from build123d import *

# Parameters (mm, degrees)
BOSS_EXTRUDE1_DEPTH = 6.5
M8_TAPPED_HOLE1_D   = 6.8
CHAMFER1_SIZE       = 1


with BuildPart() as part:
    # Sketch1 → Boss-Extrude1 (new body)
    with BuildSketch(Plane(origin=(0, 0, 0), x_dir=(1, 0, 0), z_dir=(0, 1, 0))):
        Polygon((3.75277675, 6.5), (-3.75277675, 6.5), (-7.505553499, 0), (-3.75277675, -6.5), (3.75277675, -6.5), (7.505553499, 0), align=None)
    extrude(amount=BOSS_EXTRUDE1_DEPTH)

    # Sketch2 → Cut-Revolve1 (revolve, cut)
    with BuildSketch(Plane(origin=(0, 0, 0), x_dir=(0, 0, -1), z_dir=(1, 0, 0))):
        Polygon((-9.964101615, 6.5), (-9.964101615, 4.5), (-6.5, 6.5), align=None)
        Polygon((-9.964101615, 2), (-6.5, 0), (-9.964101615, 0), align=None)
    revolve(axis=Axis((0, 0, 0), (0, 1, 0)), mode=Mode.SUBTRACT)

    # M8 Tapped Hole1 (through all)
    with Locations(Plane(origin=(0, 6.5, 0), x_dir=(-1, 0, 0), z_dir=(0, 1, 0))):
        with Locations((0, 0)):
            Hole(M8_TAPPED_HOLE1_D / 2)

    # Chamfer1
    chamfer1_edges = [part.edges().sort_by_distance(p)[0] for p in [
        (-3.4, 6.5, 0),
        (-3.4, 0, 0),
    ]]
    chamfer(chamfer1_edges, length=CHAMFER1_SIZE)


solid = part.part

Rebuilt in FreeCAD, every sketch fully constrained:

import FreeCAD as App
import Part
import Sketcher
Q = App.Units.Quantity


def edges_at(feature, points):
    """Names of the edges that pass closest to the given points."""
    edges = feature.Shape.Edges
    near = lambda p: min(range(len(edges)), key=lambda i: edges[i].distToShape(Part.Vertex(*p))[0])
    return sorted({f"Edge{near(p) + 1}" for p in points})

doc = App.newDocument("Part")
body = doc.addObject("PartDesign::Body", "Body")

# Sketch on XZ plane
sketch1 = body.newObject("Sketcher::SketchObject", "Sketch")
sketch1.AttachmentSupport = (doc.getObject("XZ_Plane"), [""])
sketch1.MapMode = "FlatFace"
sketch1.addGeometry(Part.LineSegment(App.Vector(4, -6, 0), App.Vector(-4, -6, 0)), False)
sketch1.addGeometry(Part.LineSegment(App.Vector(-4, -6, 0), App.Vector(-8, 0, 0)), False)
sketch1.addGeometry(Part.LineSegment(App.Vector(-8, 0, 0), App.Vector(-4, 6, 0)), False)
sketch1.addGeometry(Part.LineSegment(App.Vector(-4, 6, 0), App.Vector(4, 6, 0)), False)
sketch1.addGeometry(Part.LineSegment(App.Vector(4, 6, 0), App.Vector(8, 0, 0)), False)
sketch1.addGeometry(Part.LineSegment(App.Vector(8, 0, 0), App.Vector(4, -6, 0)), False)
sketch1.addConstraint(Sketcher.Constraint("Coincident", 0, 2, 1, 1))
sketch1.addConstraint(Sketcher.Constraint("Coincident", 1, 2, 2, 1))
sketch1.addConstraint(Sketcher.Constraint("Coincident", 2, 2, 3, 1))
sketch1.addConstraint(Sketcher.Constraint("Coincident", 3, 2, 4, 1))
sketch1.addConstraint(Sketcher.Constraint("Coincident", 4, 2, 5, 1))
sketch1.addConstraint(Sketcher.Constraint("Coincident", 5, 2, 0, 1))
sketch1.addConstraint(Sketcher.Constraint("Horizontal", 0))
sketch1.addConstraint(Sketcher.Constraint("Horizontal", 3))
sketch1.addConstraint(Sketcher.Constraint("Symmetric", 0, 2, 3, 2, -1, 1))
sketch1.addConstraint(Sketcher.Constraint("Symmetric", 1, 2, 4, 2, -1, 1))
sketch1.addConstraint(Sketcher.Constraint("PointOnObject", 1, 2, -1))
sketch1.addConstraint(Sketcher.Constraint("Parallel", 2, 5))
sketch1.addConstraint(Sketcher.Constraint("Vertical", 0, 2, 2, 2))
sketch1.addConstraint(Sketcher.Constraint("Angle", 1, Q("120 deg")))
sketch1.addConstraint(Sketcher.Constraint("DistanceY", 0, 2, 2, 2, Q("13 mm")))
sketch1.addConstraint(Sketcher.Constraint("DistanceX", 0, 2, 0, 1, Q("7.505554 mm")))
pad1 = body.newObject("PartDesign::Pad", "Pad")
pad1.Profile = sketch1
pad1.Length = 6.5
pad1.Reversed = True

# Sketch on YZ plane
sketch2 = body.newObject("Sketcher::SketchObject", "Sketch001")
sketch2.AttachmentSupport = (doc.getObject("YZ_Plane"), [""])
sketch2.MapMode = "FlatFace"
sketch2.addGeometry(Part.LineSegment(App.Vector(6.5, 10, 0), App.Vector(4.5, 10, 0)), False)
sketch2.addGeometry(Part.LineSegment(App.Vector(4.5, 10, 0), App.Vector(6.5, 6.5, 0)), False)
sketch2.addGeometry(Part.LineSegment(App.Vector(6.5, 6.5, 0), App.Vector(6.5, 10, 0)), False)
sketch2.addGeometry(Part.LineSegment(App.Vector(0, 6.5, 0), App.Vector(2, 10, 0)), False)
sketch2.addGeometry(Part.LineSegment(App.Vector(2, 10, 0), App.Vector(0, 10, 0)), False)
sketch2.addGeometry(Part.LineSegment(App.Vector(0, 10, 0), App.Vector(0, 6.5, 0)), False)
sketch2.addConstraint(Sketcher.Constraint("Coincident", 0, 2, 1, 1))
sketch2.addConstraint(Sketcher.Constraint("Coincident", 1, 2, 2, 1))
sketch2.addConstraint(Sketcher.Constraint("Coincident", 2, 2, 0, 1))
sketch2.addConstraint(Sketcher.Constraint("Coincident", 3, 2, 4, 1))
sketch2.addConstraint(Sketcher.Constraint("Coincident", 4, 2, 5, 1))
sketch2.addConstraint(Sketcher.Constraint("Coincident", 5, 2, 3, 1))
sketch2.addConstraint(Sketcher.Constraint("Horizontal", 0))
sketch2.addConstraint(Sketcher.Constraint("Vertical", 2))
sketch2.addConstraint(Sketcher.Constraint("Horizontal", 4))
sketch2.addConstraint(Sketcher.Constraint("Vertical", 5))
sketch2.addConstraint(Sketcher.Constraint("PointOnObject", 4, 2, -2))
sketch2.addConstraint(Sketcher.Constraint("Horizontal", 2, 2, 3, 2))
sketch2.addConstraint(Sketcher.Constraint("Horizontal", 1, 2, 5, 2))
sketch2.addConstraint(Sketcher.Constraint("Equal", 0, 4))
sketch2.addConstraint(Sketcher.Constraint("DistanceX", 0, 2, 0, 1, Q("2 mm")))
sketch2.addConstraint(Sketcher.Constraint("Angle", 1, Q("-60 deg")))
sketch2.addConstraint(Sketcher.Constraint("DistanceX", -1, 1, 0, 2, Q("4.5 mm")))
sketch2.addConstraint(Sketcher.Constraint("DistanceY", -1, 1, 1, 2, Q("6.5 mm")))
groove = body.newObject("PartDesign::Groove", "Groove")
groove.Profile = sketch2
groove.ReferenceAxis = (sketch2, ["H_Axis"])
groove.Angle = 360

# Sketch on XZ plane
sketch3 = body.newObject("Sketcher::SketchObject", "Sketch002")
sketch3.AttachmentSupport = (doc.getObject("XZ_Plane"), [""])
sketch3.MapMode = "FlatFace"
sketch3.AttachmentOffset = App.Placement(App.Vector(0, 0, -6.5), App.Rotation())
sketch3.addGeometry(Part.Circle(App.Vector(0, 0, 0), App.Vector(0, 0, 1), 3.4), False)
sketch3.addConstraint(Sketcher.Constraint("Coincident", 0, 3, -1, 1))
sketch3.addConstraint(Sketcher.Constraint("Diameter", 0, Q("6.8 mm")))
doc.recompute()
hole = body.newObject("PartDesign::Hole", "Hole")
hole.Profile = sketch3
hole.ThreadType = "None"
hole.Diameter = 6.8
hole.DepthType = "ThroughAll"
hole.Reversed = True
doc.recompute()

chamfer = body.newObject("PartDesign::Chamfer", "Chamfer")
chamfer.Base = (hole, edges_at(hole, [(-3.4, 6.5, 0), (-3.4, 0, 0)]))
chamfer.Size = 1

doc.recompute()
